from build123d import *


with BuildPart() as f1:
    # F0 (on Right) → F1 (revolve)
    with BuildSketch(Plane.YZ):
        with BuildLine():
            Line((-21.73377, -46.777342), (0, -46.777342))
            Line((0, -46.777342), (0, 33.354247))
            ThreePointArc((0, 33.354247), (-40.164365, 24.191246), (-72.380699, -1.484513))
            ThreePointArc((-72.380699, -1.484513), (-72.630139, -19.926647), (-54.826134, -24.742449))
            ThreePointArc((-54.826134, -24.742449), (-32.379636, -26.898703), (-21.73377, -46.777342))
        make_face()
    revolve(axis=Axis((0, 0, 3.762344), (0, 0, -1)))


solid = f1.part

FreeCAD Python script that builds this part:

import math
import FreeCAD as App
import Part
import Sketcher
from FreeCAD import Vector
Q = App.Units.Quantity

doc = App.newDocument("Part")
body = doc.addObject("PartDesign::Body", "Body")

# Sketch on YZ plane
sketch1 = body.newObject("Sketcher::SketchObject", "Sketch")
sketch1.AttachmentSupport = (doc.getObject("YZ_Plane"), [""])
sketch1.MapMode = "FlatFace"
sketch1.addGeometry([
    Part.LineSegment(Vector(-21.73377, -46.777342, 0), Vector(0, -46.777342, 0)),  # 0
    Part.LineSegment(Vector(0, -46.777342, 0), Vector(0, 33.354247, 0)),  # 1
    Part.ArcOfCircle(Part.Circle(Vector(-0.000001, -59.25388, 0), Vector(0, 0, 1), 92.608127), math.radians(89.999999), math.radians(141.405505)),  # 2
    Part.ArcOfCircle(Part.Circle(Vector(-60.62608, -10.866255, 0), Vector(0, 0, 1), 15.039553), math.radians(141.405501), math.radians(292.683861)),  # 3
    Part.ArcOfCircle(Part.Circle(Vector(-45.616032, -46.777341, 0), Vector(0, 0, 1), 23.882262), math.radians(-0.000001), math.radians(112.683857)),  # 4
], False)
sketch1.addConstraint([
    Sketcher.Constraint("Coincident", 0, 2, 1, 1),
    Sketcher.Constraint("Coincident", 1, 2, 2, 1),
    Sketcher.Constraint("Tangent", 2, 2, 3, 1),
    Sketcher.Constraint("Tangent", 3, 2, 4, 2),
    Sketcher.Constraint("Coincident", 4, 1, 0, 1),
    Sketcher.Constraint("Horizontal", 0),
    Sketcher.Constraint("Vertical", 1),
    Sketcher.Constraint("PointOnObject", 2, 3, -2),
    Sketcher.Constraint("PointOnObject", 0, 2, -2),
    Sketcher.Constraint("Horizontal", 4, 3, 0, 2),
    Sketcher.Constraint("Radius", 2, Q("92.608127 mm")),
    Sketcher.Constraint("Radius", 3, Q("15.039553 mm")),
    Sketcher.Constraint("Radius", 4, Q("23.882262 mm")),
    Sketcher.Constraint("DistanceX", 0, 1, 0, 2, Q("21.73377 mm")),
    Sketcher.Constraint("DistanceY", 1, 1, 1, 2, Q("80.131589 mm")),
    Sketcher.Constraint("DistanceY", 2, 3, -1, 1, Q("59.25388 mm")),
])
revolution = body.newObject("PartDesign::Revolution", "Revolution")
revolution.Profile = sketch1
revolution.ReferenceAxis = (sketch1, ["V_Axis"])
revolution.Angle = 360

doc.recompute()
